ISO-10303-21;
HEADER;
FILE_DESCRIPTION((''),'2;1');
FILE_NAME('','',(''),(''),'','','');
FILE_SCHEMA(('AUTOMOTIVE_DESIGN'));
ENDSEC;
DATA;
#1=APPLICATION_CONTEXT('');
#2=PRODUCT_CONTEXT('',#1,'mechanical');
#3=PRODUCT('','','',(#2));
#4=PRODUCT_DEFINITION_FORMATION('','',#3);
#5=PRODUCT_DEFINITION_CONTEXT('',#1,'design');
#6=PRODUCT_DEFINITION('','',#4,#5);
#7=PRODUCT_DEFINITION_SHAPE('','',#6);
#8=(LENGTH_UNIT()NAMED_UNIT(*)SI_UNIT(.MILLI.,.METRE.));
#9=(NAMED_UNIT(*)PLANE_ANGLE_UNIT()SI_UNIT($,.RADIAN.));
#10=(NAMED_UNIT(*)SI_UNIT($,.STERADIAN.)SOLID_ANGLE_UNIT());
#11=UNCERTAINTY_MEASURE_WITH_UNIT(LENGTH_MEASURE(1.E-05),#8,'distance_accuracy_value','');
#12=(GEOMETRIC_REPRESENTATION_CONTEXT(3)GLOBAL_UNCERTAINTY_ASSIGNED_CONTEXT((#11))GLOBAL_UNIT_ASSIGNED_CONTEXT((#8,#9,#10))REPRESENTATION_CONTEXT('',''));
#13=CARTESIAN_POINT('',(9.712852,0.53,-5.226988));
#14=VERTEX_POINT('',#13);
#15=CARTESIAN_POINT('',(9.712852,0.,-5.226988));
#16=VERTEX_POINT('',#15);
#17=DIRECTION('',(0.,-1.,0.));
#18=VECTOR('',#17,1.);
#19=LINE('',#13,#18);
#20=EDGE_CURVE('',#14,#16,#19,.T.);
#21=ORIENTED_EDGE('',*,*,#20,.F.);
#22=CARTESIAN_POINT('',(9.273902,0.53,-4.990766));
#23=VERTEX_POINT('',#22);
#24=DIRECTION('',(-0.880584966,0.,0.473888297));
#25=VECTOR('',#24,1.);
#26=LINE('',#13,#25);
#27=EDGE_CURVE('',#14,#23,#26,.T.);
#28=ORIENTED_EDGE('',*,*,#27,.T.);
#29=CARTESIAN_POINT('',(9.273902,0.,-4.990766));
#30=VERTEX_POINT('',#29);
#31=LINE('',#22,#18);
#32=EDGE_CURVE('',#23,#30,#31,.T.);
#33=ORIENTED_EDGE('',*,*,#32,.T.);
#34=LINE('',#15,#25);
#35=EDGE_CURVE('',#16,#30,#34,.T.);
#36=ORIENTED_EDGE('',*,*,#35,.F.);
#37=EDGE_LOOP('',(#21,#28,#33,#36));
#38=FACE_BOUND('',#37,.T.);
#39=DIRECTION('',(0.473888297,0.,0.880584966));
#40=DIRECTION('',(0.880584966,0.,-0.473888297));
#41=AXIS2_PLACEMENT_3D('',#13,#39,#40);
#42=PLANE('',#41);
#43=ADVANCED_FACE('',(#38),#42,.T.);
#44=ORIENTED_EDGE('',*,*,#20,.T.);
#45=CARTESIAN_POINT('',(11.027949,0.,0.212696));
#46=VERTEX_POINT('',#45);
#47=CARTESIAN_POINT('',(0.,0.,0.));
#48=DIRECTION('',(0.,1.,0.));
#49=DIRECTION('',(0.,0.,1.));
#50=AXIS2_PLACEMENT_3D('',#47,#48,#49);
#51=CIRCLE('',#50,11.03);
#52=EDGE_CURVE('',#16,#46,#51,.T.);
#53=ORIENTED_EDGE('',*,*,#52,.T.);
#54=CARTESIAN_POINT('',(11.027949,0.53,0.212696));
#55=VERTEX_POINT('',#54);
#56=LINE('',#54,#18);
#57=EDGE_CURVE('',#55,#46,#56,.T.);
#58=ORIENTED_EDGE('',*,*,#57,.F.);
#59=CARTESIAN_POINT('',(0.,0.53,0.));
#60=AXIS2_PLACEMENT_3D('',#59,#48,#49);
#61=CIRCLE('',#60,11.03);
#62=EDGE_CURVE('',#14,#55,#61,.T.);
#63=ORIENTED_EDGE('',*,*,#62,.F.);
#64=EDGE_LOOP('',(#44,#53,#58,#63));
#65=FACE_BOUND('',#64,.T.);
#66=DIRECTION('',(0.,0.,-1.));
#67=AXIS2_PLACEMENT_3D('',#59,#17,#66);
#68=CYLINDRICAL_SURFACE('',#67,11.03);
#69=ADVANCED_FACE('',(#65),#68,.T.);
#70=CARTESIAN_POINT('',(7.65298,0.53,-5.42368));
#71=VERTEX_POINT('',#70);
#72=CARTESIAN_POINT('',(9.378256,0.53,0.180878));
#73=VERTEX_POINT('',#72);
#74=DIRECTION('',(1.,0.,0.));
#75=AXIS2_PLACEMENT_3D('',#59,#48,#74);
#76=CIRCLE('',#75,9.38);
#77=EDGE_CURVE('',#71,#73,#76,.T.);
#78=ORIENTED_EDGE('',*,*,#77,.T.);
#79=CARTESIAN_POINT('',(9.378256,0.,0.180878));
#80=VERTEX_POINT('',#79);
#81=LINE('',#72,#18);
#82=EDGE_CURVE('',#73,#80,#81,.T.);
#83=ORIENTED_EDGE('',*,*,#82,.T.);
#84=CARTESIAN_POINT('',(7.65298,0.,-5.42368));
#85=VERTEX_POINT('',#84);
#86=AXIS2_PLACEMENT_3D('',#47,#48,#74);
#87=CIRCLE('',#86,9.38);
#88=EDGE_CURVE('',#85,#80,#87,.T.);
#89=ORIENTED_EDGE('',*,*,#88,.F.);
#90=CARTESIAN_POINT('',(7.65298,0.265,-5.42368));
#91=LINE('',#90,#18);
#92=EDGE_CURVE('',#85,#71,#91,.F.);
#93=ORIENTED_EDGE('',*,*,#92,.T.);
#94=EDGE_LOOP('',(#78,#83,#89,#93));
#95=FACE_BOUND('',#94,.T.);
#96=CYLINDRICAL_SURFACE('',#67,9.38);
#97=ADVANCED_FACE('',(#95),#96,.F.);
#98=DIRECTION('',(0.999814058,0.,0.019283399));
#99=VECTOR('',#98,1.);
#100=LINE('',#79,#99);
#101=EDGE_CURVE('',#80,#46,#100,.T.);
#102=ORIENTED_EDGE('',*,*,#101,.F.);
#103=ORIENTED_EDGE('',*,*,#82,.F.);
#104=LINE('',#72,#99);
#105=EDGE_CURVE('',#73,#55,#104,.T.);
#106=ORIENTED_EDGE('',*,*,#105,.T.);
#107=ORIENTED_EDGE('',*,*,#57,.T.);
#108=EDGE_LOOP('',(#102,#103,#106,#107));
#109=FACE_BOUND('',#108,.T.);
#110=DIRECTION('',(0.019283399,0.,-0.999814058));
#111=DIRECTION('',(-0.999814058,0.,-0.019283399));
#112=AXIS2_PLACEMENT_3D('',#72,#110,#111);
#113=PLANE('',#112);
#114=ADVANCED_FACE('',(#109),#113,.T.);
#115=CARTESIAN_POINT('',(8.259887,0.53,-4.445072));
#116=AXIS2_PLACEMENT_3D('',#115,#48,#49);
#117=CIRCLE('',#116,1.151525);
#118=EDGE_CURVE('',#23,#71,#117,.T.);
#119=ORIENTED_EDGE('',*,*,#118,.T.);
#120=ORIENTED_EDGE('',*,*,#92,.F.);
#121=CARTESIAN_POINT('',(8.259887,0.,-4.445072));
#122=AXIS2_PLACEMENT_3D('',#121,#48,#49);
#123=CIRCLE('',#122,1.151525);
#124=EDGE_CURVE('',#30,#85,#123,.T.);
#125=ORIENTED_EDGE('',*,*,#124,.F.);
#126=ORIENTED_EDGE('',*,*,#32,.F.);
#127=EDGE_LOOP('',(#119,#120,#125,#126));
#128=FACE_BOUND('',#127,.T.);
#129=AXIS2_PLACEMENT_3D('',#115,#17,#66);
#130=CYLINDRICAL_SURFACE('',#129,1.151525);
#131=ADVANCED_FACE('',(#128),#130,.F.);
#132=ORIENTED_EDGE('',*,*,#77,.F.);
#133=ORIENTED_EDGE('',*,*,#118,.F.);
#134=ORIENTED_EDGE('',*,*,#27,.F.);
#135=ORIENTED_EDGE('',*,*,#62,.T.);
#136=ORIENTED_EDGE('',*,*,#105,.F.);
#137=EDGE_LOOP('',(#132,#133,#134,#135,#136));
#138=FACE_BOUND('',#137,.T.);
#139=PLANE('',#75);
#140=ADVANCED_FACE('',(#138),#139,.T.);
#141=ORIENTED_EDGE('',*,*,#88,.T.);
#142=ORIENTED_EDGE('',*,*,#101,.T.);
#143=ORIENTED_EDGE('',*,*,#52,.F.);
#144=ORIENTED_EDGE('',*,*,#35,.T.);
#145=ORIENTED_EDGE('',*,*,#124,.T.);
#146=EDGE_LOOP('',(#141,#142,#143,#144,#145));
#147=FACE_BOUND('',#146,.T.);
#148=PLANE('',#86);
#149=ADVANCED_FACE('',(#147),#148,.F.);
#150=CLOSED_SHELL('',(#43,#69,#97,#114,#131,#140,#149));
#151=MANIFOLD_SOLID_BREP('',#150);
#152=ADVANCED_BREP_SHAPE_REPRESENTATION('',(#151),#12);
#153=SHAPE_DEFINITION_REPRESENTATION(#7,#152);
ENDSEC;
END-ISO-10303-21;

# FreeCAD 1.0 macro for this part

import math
import FreeCAD as App
import Part
import Sketcher
Q = App.Units.Quantity

doc = App.newDocument("Part")
body = doc.addObject("PartDesign::Body", "Body")

sketch1 = body.newObject("Sketcher::SketchObject", "Sketch")
sketch1.AttachmentSupport = (doc.getObject("XZ_Plane"), [""])
sketch1.MapMode = "FlatFace"
sketch1.addGeometry([
    Part.ArcOfCircle(Part.Circle(App.Vector(0, 0, 0), App.Vector(0, 0, 1), 11), math.radians(1), math.radians(332)),
    Part.LineSegment(App.Vector(11, 0.2, 0), App.Vector(9.4, 0.2, 0)),
    Part.ArcOfCircle(Part.Circle(App.Vector(0, 0, 0), App.Vector(0, 0, 1), 9.4), math.radians(1), math.radians(332)),
    Part.LineSegment(App.Vector(8.3, -4.4, 0), App.Vector(9.7, -5.2, 0)),
], False)
sketch1.addConstraint([
    Sketcher.Constraint("Coincident", 0, 1, 1, 1),
    Sketcher.Constraint("Coincident", 1, 2, 2, 1),
    Sketcher.Constraint("Coincident", 2, 2, 3, 1),
    Sketcher.Constraint("Coincident", 3, 2, 0, 2),
    Sketcher.Constraint("Coincident", 0, 3, -1, 1),
    Sketcher.Constraint("Coincident", 2, 3, -1, 1),
    Sketcher.Constraint("Radius", 0, Q("11.03 mm")),
    Sketcher.Constraint("Radius", 2, Q("9.38 mm")),
    Sketcher.Constraint("DistanceX", -1, 1, 0, 1, Q("11.027949 mm")),
    Sketcher.Constraint("DistanceY", -1, 1, 1, 2, Q("0.180878 mm")),
    Sketcher.Constraint("DistanceX", 2, 2, 1, 2, Q("1.118369 mm")),
    Sketcher.Constraint("DistanceX", -1, 1, 3, 2, Q("9.712852 mm")),
])
pad1 = body.newObject("PartDesign::Pad", "Pad")
pad1.Profile = sketch1
pad1.Length = 0.53
pad1.Reversed = True

sketch2 = body.newObject("Sketcher::SketchObject", "Sketch001")
sketch2.AttachmentSupport = (doc.getObject("XZ_Plane"), [""])
sketch2.MapMode = "FlatFace"
sketch2.addGeometry(Part.Circle(App.Vector(8.3, -4.4, 0), App.Vector(0, 0, 1), 1.2), False)
sketch2.addConstraint([
    Sketcher.Constraint("Diameter", 0, Q("2.30305 mm")),
    Sketcher.Constraint("DistanceX", -1, 1, 0, 3, Q("8.259887 mm")),
    Sketcher.Constraint("DistanceY", 0, 3, -1, 1, Q("4.445072 mm")),
])
pocket1 = body.newObject("PartDesign::Pocket", "Pocket")
pocket1.Profile = sketch2
pocket1.Type = "ThroughAll"

doc.recompute()
